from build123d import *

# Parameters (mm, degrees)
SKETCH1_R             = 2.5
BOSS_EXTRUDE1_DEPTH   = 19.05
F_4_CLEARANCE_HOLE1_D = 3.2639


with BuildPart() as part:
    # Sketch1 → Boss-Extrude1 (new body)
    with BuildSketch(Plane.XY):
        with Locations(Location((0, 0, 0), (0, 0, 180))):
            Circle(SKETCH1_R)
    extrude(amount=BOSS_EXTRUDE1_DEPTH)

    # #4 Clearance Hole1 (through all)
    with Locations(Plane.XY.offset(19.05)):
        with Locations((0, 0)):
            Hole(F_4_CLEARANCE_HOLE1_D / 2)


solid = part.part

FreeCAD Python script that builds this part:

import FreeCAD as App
import Part
import Sketcher

V = App.Vector

doc = App.newDocument("Part")
body = doc.addObject("PartDesign::Body", "Body")

sketch1 = body.newObject("Sketcher::SketchObject", "Sketch")
sketch1.AttachmentSupport = (doc.getObject("XY_Plane"), [""])
sketch1.MapMode = "FlatFace"
sketch1.addGeometry(Part.Circle(V(0, 0, 0), V(0, 0, 1), 2.5), False)
sketch1.addConstraint([
    Sketcher.Constraint("Coincident", 0, 3, -1, 1),
    Sketcher.Constraint("Diameter", 0, 5.0),
])
pad1 = body.newObject("PartDesign::Pad", "Pad")
pad1.Profile = sketch1
pad1.Length = 19.05

sketch2 = body.newObject("Sketcher::SketchObject", "Sketch001")
sketch2.AttachmentSupport = (doc.getObject("XY_Plane"), [""])
sketch2.MapMode = "FlatFace"
sketch2.AttachmentOffset = App.Placement(V(0, 0, 19.05), App.Rotation())
sketch2.addGeometry(Part.Circle(V(0, 0, 0), V(0, 0, 1), 1.6), False)
sketch2.addConstraint([
    Sketcher.Constraint("Coincident", 0, 3, -1, 1),
    Sketcher.Constraint("Diameter", 0, 3.2639),
])
doc.recompute()
hole = body.newObject("PartDesign::Hole", "Hole")
hole.Profile = sketch2
hole.ThreadType = "None"
hole.Diameter = 3.2639
hole.DepthType = "ThroughAll"

doc.recompute()
